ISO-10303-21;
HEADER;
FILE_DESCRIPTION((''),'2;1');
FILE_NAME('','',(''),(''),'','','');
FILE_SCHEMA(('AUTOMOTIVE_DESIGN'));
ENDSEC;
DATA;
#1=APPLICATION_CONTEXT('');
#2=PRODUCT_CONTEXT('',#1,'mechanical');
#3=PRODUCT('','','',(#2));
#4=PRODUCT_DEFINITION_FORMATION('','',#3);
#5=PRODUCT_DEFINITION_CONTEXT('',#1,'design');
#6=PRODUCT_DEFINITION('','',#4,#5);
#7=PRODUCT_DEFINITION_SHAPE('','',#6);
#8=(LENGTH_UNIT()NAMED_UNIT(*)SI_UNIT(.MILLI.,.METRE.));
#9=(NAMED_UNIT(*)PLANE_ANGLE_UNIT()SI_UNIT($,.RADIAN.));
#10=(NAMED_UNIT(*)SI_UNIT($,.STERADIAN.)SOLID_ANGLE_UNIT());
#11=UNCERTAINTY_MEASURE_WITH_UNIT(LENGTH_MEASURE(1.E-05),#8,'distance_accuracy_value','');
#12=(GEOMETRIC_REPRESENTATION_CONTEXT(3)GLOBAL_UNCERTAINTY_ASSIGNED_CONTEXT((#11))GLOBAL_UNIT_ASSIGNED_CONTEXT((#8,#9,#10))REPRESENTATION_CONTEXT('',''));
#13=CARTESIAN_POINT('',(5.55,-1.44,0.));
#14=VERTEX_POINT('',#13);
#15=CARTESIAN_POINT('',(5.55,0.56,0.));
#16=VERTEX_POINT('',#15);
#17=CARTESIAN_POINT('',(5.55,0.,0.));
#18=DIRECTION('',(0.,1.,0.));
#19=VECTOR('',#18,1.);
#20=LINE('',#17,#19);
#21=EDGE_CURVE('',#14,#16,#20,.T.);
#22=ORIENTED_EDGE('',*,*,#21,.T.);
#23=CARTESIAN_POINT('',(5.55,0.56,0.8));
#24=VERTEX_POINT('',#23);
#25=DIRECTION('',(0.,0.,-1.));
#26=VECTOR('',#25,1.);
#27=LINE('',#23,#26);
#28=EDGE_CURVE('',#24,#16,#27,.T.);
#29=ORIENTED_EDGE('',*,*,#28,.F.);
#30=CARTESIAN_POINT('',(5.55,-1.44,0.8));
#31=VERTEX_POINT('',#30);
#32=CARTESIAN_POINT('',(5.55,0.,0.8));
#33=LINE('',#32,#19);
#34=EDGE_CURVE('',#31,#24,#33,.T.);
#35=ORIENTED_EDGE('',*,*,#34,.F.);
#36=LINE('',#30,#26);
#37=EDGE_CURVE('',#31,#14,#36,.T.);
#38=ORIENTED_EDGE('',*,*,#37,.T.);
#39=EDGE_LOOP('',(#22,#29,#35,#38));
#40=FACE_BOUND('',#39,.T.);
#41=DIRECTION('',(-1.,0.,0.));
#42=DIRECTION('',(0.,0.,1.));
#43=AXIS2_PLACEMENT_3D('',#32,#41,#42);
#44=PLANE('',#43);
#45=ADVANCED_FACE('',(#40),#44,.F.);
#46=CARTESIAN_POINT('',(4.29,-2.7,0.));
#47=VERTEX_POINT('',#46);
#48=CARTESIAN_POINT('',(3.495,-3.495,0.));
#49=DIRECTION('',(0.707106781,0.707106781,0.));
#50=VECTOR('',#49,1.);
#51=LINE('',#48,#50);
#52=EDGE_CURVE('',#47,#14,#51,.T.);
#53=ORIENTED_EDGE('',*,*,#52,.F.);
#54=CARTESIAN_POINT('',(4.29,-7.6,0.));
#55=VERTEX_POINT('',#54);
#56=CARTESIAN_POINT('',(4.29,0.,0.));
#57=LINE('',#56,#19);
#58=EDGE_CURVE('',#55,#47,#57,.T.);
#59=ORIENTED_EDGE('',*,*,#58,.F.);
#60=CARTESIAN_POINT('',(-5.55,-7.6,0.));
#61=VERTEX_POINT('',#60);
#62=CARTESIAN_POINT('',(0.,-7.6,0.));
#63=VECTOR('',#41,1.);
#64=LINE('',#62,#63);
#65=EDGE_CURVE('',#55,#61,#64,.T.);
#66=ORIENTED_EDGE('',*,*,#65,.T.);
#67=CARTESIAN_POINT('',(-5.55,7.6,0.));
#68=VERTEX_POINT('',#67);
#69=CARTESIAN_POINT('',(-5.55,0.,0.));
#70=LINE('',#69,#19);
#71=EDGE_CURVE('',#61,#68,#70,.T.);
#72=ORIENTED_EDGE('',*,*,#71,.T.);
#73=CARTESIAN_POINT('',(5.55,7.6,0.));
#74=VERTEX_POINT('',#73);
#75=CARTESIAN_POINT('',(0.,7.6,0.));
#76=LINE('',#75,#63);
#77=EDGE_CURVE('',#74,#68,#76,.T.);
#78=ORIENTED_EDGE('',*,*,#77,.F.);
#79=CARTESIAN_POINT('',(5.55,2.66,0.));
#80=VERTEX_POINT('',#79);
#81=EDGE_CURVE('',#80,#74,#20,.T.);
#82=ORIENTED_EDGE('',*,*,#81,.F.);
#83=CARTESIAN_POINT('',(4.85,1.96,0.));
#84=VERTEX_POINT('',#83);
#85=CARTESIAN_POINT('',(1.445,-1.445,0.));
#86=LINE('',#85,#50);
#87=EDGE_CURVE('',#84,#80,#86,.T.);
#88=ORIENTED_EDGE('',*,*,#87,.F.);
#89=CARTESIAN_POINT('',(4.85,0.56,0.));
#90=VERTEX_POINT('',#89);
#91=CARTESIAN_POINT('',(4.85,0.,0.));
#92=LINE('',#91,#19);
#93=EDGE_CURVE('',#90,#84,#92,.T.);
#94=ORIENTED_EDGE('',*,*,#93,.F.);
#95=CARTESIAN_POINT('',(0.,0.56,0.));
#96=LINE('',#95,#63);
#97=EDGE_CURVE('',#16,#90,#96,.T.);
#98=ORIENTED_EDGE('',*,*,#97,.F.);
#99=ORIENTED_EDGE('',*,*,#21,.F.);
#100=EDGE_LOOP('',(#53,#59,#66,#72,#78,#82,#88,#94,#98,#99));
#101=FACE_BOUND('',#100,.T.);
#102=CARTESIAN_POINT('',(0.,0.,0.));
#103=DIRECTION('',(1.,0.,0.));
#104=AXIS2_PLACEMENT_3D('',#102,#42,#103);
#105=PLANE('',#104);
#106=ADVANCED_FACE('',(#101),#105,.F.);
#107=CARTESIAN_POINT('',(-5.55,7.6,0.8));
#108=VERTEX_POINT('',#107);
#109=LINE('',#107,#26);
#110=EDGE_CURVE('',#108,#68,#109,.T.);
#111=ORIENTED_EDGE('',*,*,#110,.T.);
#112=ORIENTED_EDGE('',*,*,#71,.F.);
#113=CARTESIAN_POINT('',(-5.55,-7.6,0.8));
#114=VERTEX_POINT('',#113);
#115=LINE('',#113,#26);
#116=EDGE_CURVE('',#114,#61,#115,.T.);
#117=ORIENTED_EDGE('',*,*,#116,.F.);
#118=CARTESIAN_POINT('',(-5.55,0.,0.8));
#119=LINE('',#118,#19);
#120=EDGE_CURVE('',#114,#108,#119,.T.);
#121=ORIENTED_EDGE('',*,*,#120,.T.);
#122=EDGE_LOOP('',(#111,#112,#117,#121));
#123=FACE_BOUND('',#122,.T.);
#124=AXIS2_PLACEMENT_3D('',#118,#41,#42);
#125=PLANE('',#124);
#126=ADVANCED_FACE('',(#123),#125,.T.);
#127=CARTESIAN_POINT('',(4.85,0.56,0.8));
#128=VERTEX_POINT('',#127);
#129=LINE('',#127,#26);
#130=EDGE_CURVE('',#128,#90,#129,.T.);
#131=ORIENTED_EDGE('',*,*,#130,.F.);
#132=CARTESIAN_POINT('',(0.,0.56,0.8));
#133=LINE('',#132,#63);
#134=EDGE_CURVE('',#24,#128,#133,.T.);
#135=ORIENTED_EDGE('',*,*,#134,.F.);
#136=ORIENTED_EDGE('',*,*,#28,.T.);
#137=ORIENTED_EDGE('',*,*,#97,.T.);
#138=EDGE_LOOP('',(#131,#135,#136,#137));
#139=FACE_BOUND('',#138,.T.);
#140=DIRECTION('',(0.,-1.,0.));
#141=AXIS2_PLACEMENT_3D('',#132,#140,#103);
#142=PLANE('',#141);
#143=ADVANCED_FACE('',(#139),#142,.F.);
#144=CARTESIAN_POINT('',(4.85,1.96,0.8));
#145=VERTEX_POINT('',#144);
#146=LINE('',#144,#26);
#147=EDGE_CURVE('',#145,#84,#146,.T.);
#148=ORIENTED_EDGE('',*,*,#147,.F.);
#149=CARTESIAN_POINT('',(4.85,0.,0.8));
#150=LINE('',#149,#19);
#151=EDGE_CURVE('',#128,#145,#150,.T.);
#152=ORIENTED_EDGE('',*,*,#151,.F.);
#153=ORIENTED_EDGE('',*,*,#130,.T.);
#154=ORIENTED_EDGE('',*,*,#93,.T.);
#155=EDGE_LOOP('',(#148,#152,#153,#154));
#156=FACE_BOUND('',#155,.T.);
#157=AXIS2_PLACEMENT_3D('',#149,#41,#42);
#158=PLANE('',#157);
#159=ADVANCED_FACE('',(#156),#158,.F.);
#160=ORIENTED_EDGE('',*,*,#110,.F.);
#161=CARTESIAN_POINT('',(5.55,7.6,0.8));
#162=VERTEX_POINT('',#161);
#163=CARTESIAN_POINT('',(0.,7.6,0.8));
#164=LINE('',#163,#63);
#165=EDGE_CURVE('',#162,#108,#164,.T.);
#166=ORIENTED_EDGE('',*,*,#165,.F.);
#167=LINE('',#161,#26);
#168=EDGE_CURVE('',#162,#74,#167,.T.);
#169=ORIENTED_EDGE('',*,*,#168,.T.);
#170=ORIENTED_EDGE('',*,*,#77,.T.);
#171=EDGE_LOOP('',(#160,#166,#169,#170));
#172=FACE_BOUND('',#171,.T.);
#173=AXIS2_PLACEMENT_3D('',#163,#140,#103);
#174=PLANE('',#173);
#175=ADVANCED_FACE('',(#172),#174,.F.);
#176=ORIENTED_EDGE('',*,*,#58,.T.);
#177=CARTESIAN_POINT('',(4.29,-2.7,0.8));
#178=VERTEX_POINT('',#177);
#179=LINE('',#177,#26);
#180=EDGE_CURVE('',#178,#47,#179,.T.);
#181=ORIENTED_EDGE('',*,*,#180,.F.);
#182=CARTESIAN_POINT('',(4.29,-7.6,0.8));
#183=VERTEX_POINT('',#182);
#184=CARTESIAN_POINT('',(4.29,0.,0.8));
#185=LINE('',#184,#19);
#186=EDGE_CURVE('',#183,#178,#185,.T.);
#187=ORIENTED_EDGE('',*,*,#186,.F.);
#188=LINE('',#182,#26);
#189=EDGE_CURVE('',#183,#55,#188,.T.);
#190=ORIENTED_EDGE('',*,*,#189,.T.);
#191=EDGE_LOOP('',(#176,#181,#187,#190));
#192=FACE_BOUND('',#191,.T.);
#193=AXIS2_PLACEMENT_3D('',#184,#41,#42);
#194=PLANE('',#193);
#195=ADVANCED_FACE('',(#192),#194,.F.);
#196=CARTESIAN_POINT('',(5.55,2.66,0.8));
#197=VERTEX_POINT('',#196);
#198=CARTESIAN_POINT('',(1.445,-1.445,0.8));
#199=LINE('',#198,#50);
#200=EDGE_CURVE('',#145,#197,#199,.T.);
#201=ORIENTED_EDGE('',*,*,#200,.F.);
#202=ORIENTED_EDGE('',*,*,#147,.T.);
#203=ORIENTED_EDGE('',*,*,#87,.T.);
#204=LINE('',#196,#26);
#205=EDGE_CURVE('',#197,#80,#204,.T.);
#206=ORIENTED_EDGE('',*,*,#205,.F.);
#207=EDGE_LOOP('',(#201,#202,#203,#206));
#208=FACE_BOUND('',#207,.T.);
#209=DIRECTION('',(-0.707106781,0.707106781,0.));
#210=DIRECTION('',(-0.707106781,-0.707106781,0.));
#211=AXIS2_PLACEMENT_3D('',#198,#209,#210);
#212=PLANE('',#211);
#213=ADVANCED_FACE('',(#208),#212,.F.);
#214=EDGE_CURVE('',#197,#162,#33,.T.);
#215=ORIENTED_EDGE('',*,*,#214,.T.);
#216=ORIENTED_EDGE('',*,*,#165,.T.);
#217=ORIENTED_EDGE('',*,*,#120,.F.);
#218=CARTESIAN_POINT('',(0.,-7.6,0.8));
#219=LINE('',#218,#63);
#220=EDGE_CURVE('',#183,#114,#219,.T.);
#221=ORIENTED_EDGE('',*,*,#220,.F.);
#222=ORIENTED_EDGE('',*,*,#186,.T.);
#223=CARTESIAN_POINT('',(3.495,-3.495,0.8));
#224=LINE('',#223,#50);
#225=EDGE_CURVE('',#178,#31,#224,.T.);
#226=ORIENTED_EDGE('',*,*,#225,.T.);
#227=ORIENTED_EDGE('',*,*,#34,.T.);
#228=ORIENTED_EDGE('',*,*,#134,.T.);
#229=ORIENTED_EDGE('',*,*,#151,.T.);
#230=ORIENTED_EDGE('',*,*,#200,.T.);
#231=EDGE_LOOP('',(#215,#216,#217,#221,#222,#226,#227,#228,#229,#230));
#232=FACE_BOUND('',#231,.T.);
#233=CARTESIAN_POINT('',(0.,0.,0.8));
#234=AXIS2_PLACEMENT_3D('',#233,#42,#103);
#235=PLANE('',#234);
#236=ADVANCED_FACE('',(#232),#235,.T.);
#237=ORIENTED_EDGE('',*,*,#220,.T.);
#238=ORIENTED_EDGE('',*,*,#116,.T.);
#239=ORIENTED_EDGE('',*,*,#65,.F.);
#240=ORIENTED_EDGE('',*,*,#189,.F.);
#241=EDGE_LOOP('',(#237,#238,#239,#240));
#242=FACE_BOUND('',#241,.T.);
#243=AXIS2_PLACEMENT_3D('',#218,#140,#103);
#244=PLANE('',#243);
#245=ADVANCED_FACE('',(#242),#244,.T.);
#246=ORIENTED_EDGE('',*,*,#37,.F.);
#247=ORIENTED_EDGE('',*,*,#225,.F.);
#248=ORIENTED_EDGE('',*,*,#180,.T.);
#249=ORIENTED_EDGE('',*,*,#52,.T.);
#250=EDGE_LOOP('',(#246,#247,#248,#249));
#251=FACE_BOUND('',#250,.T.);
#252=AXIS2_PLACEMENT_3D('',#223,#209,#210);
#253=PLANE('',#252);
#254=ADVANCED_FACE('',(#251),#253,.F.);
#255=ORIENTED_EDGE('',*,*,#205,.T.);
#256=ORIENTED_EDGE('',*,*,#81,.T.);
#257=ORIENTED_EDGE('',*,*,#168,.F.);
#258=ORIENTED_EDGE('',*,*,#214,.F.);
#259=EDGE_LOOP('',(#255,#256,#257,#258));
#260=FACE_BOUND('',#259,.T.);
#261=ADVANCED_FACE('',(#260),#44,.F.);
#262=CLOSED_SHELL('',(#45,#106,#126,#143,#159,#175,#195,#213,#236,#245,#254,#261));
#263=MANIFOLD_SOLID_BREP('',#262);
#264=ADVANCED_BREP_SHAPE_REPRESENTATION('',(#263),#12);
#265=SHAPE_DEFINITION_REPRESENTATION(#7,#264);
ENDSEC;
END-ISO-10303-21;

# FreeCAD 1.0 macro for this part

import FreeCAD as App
import Part
import Sketcher

V = App.Vector
Q = App.Units.Quantity

doc = App.newDocument("Part")
body = doc.addObject("PartDesign::Body", "Body")

# Sketch on XY plane
sketch1 = doc.addObject("Sketcher::SketchObject", "Sketch")
body.addObject(sketch1)
sketch1.AttachmentSupport = (doc.XY_Plane, [""])
sketch1.MapMode = "FlatFace"
sketch1.addGeometry([
    Part.LineSegment(V(4.29, -2.7, 0), V(5.55, -1.44, 0)),  # 0
    Part.LineSegment(V(5.55, -1.44, 0), V(5.55, 0.56, 0)),  # 1
    Part.LineSegment(V(5.55, 0.56, 0), V(4.85, 0.56, 0)),  # 2
    Part.LineSegment(V(4.85, 0.56, 0), V(4.85, 1.96, 0)),  # 3
    Part.LineSegment(V(4.85, 1.96, 0), V(5.55, 2.66, 0)),  # 4
    Part.LineSegment(V(5.55, 2.66, 0), V(5.55, 7.6, 0)),  # 5
    Part.LineSegment(V(5.55, 7.6, 0), V(-5.55, 7.6, 0)),  # 6
    Part.LineSegment(V(-5.55, 7.6, 0), V(-5.55, -7.6, 0)),  # 7
    Part.LineSegment(V(-5.55, -7.6, 0), V(4.29, -7.6, 0)),  # 8
    Part.LineSegment(V(4.29, -7.6, 0), V(4.29, -2.7, 0)),  # 9
], False)
sketch1.addConstraint([
    Sketcher.Constraint("Coincident", 0, 2, 1, 1),
    Sketcher.Constraint("Coincident", 1, 2, 2, 1),
    Sketcher.Constraint("Coincident", 2, 2, 3, 1),
    Sketcher.Constraint("Coincident", 3, 2, 4, 1),
    Sketcher.Constraint("Coincident", 4, 2, 5, 1),
    Sketcher.Constraint("Coincident", 5, 2, 6, 1),
    Sketcher.Constraint("Coincident", 6, 2, 7, 1),
    Sketcher.Constraint("Coincident", 7, 2, 8, 1),
    Sketcher.Constraint("Coincident", 8, 2, 9, 1),
    Sketcher.Constraint("Coincident", 9, 2, 0, 1),
    Sketcher.Constraint("Vertical", 1),
    Sketcher.Constraint("Horizontal", 2),
    Sketcher.Constraint("Vertical", 3),
    Sketcher.Constraint("Vertical", 5),
    Sketcher.Constraint("Horizontal", 6),
    Sketcher.Constraint("Vertical", 7),
    Sketcher.Constraint("Horizontal", 8),
    Sketcher.Constraint("Vertical", 9),
    Sketcher.Constraint("Symmetric", 5, 2, 7, 2, -1, 1),
    Sketcher.Constraint("Parallel", 0, 4),
    Sketcher.Constraint("Vertical", 1, 2, 4, 2),
    Sketcher.Constraint("DistanceY", 1, 1, 1, 2, Q("2 mm")),
    Sketcher.Constraint("Angle", 0, Q("45 deg")),
    Sketcher.Constraint("DistanceX", 2, 2, 2, 1, Q("0.7 mm")),
    Sketcher.Constraint("DistanceX", 6, 2, 6, 1, Q("11.1 mm")),
    Sketcher.Constraint("DistanceY", 3, 1, 3, 2, Q("1.4 mm")),
    Sketcher.Constraint("DistanceY", 7, 2, 7, 1, Q("15.2 mm")),
    Sketcher.Constraint("DistanceY", 9, 1, 9, 2, Q("4.9 mm")),
    Sketcher.Constraint("DistanceX", 8, 1, 8, 2, Q("9.84 mm")),
])
pad1 = doc.addObject("PartDesign::Pad", "Pad")
body.addObject(pad1)
pad1.Profile = sketch1
pad1.Length = 0.8

doc.recompute()
